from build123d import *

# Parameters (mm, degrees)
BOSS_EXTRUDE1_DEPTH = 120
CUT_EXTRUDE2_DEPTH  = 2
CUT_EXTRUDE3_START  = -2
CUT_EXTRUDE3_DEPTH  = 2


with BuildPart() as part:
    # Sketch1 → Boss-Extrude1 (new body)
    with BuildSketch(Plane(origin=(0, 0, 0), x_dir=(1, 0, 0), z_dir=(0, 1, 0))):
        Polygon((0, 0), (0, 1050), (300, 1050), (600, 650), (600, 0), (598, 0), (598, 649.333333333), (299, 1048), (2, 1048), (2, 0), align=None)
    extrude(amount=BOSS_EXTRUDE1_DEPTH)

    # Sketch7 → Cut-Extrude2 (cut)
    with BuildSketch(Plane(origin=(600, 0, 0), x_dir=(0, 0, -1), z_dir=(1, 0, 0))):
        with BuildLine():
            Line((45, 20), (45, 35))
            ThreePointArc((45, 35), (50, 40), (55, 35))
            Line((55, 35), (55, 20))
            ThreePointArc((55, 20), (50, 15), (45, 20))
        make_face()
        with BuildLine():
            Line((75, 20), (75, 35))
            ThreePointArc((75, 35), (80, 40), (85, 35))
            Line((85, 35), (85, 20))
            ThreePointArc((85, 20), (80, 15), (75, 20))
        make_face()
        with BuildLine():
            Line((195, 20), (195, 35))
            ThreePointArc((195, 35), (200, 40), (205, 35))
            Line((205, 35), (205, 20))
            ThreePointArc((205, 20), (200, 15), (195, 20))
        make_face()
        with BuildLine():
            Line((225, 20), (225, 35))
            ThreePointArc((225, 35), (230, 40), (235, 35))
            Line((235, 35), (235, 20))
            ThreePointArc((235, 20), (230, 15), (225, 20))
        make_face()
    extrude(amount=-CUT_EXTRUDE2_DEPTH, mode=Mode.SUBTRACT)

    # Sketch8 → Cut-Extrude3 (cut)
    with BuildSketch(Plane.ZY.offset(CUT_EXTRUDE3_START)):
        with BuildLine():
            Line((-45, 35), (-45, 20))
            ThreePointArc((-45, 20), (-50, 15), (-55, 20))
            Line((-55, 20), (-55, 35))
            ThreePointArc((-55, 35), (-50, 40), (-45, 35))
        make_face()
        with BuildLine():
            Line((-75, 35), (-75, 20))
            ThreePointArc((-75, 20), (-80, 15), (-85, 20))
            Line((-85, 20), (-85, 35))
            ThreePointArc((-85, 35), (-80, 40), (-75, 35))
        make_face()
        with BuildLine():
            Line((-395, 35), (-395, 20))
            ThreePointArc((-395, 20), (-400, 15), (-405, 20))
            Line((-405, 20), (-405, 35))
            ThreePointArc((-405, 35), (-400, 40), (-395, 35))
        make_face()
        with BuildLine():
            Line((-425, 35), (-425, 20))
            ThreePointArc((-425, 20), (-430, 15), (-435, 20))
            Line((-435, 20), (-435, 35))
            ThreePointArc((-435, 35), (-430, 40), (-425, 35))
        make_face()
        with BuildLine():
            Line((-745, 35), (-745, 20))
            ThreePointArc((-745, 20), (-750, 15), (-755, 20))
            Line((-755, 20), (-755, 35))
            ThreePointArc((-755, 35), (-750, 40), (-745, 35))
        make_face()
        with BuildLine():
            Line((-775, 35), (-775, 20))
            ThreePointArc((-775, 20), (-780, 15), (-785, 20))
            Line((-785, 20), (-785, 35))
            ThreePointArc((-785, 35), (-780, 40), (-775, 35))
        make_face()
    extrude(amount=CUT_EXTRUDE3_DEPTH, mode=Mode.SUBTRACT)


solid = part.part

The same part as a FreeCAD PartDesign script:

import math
import FreeCAD as App
import Part
import Sketcher
from FreeCAD import Vector

doc = App.newDocument("Part")
params = doc.addObject("Spreadsheet::Sheet", "Params")
for row, (alias, value) in enumerate([
    ("sketch1_width", "2 mm"),
    ("sketch1_width2", "297 mm"),
    ("sketch1_width3", "300 mm"),
    ("sketch1_height", "1050 mm"),
    ("sketch1_height2", "1048 mm"),
    ("pad1_length", "120 mm"),
    ("sketch2_radius", "5 mm"),
    ("sketch2_width", "15 mm"),
    ("pocket1_length", "2 mm"),
    ("sketch3_radius", "5 mm"),
    ("sketch3_width", "15 mm"),
    ("pocket2_length", "2 mm"),
], start=1):
    params.set(f"A{row}", alias)
    params.set(f"B{row}", "=" + value)
    params.setAlias(f"B{row}", alias)

body = doc.addObject("PartDesign::Body", "Body")

sketch1 = body.newObject("Sketcher::SketchObject", "Sketch")
sketch1.AttachmentSupport = (doc.getObject("XZ_Plane"), [""])
sketch1.MapMode = "FlatFace"
sketch1.addGeometry([
    Part.LineSegment(Vector(0, -1050, 0), Vector(0, 0, 0)),
    Part.LineSegment(Vector(0, 0, 0), Vector(2, 0, 0)),
    Part.LineSegment(Vector(2, 0, 0), Vector(2, -1048, 0)),
    Part.LineSegment(Vector(2, -1048, 0), Vector(299, -1048, 0)),
    Part.LineSegment(Vector(299, -1048, 0), Vector(598, -649.3, 0)),
    Part.LineSegment(Vector(598, -649.3, 0), Vector(598, 0, 0)),
    Part.LineSegment(Vector(598, 0, 0), Vector(600, 0, 0)),
    Part.LineSegment(Vector(600, 0, 0), Vector(600, -650, 0)),
    Part.LineSegment(Vector(600, -650, 0), Vector(300, -1050, 0)),
    Part.LineSegment(Vector(300, -1050, 0), Vector(0, -1050, 0)),
], False)
sketch1.addConstraint([
    Sketcher.Constraint("Coincident", 0, 2, 1, 1),
    Sketcher.Constraint("Coincident", 1, 2, 2, 1),
    Sketcher.Constraint("Coincident", 2, 2, 3, 1),
    Sketcher.Constraint("Coincident", 3, 2, 4, 1),
    Sketcher.Constraint("Coincident", 4, 2, 5, 1),
    Sketcher.Constraint("Coincident", 5, 2, 6, 1),
    Sketcher.Constraint("Coincident", 6, 2, 7, 1),
    Sketcher.Constraint("Coincident", 7, 2, 8, 1),
    Sketcher.Constraint("Coincident", 8, 2, 9, 1),
    Sketcher.Constraint("Coincident", 9, 2, 0, 1),
    Sketcher.Constraint("Vertical", 0),
    Sketcher.Constraint("Horizontal", 1),
    Sketcher.Constraint("Vertical", 2),
    Sketcher.Constraint("Horizontal", 3),
    Sketcher.Constraint("Vertical", 5),
    Sketcher.Constraint("Horizontal", 6),
    Sketcher.Constraint("Vertical", 7),
    Sketcher.Constraint("Horizontal", 9),
    Sketcher.Constraint("Coincident", 0, 2, -1, 1),
    Sketcher.Constraint("PointOnObject", 5, 2, -1),
    Sketcher.Constraint("Parallel", 4, 8),
    Sketcher.Constraint("Equal", 1, 6),
    Sketcher.Constraint("DistanceX", 1, 1, 1, 2, 2.0),
    Sketcher.Constraint("DistanceX", 3, 1, 3, 2, 297.0),
    Sketcher.Constraint("DistanceX", 9, 2, 9, 1, 300.0),
    Sketcher.Constraint("DistanceY", 0, 1, 0, 2, 1050.0),
    Sketcher.Constraint("DistanceY", 2, 2, 2, 1, 1048.0),
    Sketcher.Constraint("DistanceY", 7, 2, 7, 1, 650.0),
    Sketcher.Constraint("Distance", 8, 500.0),
])
sketch1.setExpression("Constraints[22]", "Params.sketch1_width")
sketch1.setExpression("Constraints[23]", "Params.sketch1_width2")
sketch1.setExpression("Constraints[24]", "Params.sketch1_width3")
sketch1.setExpression("Constraints[25]", "Params.sketch1_height")
sketch1.setExpression("Constraints[26]", "Params.sketch1_height2")
pad1 = body.newObject("PartDesign::Pad", "Pad")
pad1.Profile = sketch1
pad1.setExpression("Length", "Params.pad1_length")
pad1.Reversed = True

sketch2 = body.newObject("Sketcher::SketchObject", "Sketch001")
sketch2.AttachmentSupport = (doc.getObject("YZ_Plane"), [""])
sketch2.MapMode = "FlatFace"
sketch2.AttachmentOffset = App.Placement(Vector(0, 0, 600), App.Rotation())
sketch2.addGeometry([
    Part.LineSegment(Vector(35, -45, 0), Vector(20, -45, 0)),
    Part.ArcOfCircle(Part.Circle(Vector(20, -50, 0), Vector(0, 0, 1), 5), math.radians(90), math.radians(270)),
    Part.LineSegment(Vector(20, -55, 0), Vector(35, -55, 0)),
    Part.ArcOfCircle(Part.Circle(Vector(35, -50, 0), Vector(0, 0, 1), 5), math.radians(-90), math.radians(90)),
    Part.LineSegment(Vector(35, -75, 0), Vector(20, -75, 0)),
    Part.ArcOfCircle(Part.Circle(Vector(20, -80, 0), Vector(0, 0, 1), 5), math.radians(90), math.radians(270)),
    Part.LineSegment(Vector(20, -85, 0), Vector(35, -85, 0)),
    Part.ArcOfCircle(Part.Circle(Vector(35, -80, 0), Vector(0, 0, 1), 5), math.radians(-90), math.radians(90)),
    Part.LineSegment(Vector(35, -195, 0), Vector(20, -195, 0)),
    Part.ArcOfCircle(Part.Circle(Vector(20, -200, 0), Vector(0, 0, 1), 5), math.radians(90), math.radians(270)),
    Part.LineSegment(Vector(20, -205, 0), Vector(35, -205, 0)),
    Part.ArcOfCircle(Part.Circle(Vector(35, -200, 0), Vector(0, 0, 1), 5), math.radians(-90), math.radians(90)),
    Part.LineSegment(Vector(35, -225, 0), Vector(20, -225, 0)),
    Part.ArcOfCircle(Part.Circle(Vector(20, -230, 0), Vector(0, 0, 1), 5), math.radians(90), math.radians(270)),
    Part.LineSegment(Vector(20, -235, 0), Vector(35, -235, 0)),
    Part.ArcOfCircle(Part.Circle(Vector(35, -230, 0), Vector(0, 0, 1), 5), math.radians(-90), math.radians(90)),
], False)
sketch2.addConstraint([
    Sketcher.Constraint("Tangent", 0, 2, 1, 1),
    Sketcher.Constraint("Tangent", 1, 2, 2, 1),
    Sketcher.Constraint("Tangent", 2, 2, 3, 1),
    Sketcher.Constraint("Tangent", 3, 2, 0, 1),
    Sketcher.Constraint("Tangent", 4, 2, 5, 1),
    Sketcher.Constraint("Tangent", 5, 2, 6, 1),
    Sketcher.Constraint("Tangent", 6, 2, 7, 1),
    Sketcher.Constraint("Tangent", 7, 2, 4, 1),
    Sketcher.Constraint("Tangent", 8, 2, 9, 1),
    Sketcher.Constraint("Tangent", 9, 2, 10, 1),
    Sketcher.Constraint("Tangent", 10, 2, 11, 1),
    Sketcher.Constraint("Tangent", 11, 2, 8, 1),
    Sketcher.Constraint("Tangent", 12, 2, 13, 1),
    Sketcher.Constraint("Tangent", 13, 2, 14, 1),
    Sketcher.Constraint("Tangent", 14, 2, 15, 1),
    Sketcher.Constraint("Tangent", 15, 2, 12, 1),
    Sketcher.Constraint("Horizontal", 0),
    Sketcher.Constraint("Horizontal", 2),
    Sketcher.Constraint("Horizontal", 4),
    Sketcher.Constraint("Horizontal", 6),
    Sketcher.Constraint("Horizontal", 8),
    Sketcher.Constraint("Horizontal", 10),
    Sketcher.Constraint("Horizontal", 12),
    Sketcher.Constraint("Horizontal", 14),
    Sketcher.Constraint("Equal", 3, 5),
    Sketcher.Constraint("Equal", 7, 9),
    Sketcher.Constraint("Equal", 11, 13),
    Sketcher.Constraint("Vertical", 1, 3, 5, 3),
    Sketcher.Constraint("Vertical", 3, 3, 7, 3),
    Sketcher.Constraint("Vertical", 5, 3, 9, 3),
    Sketcher.Constraint("Vertical", 7, 3, 11, 3),
    Sketcher.Constraint("Vertical", 9, 3, 13, 3),
    Sketcher.Constraint("Vertical", 11, 3, 15, 3),
    Sketcher.Constraint("Radius", 1, 5.0),
    Sketcher.Constraint("DistanceX", 0, 2, 0, 1, 15.0),
    Sketcher.Constraint("DistanceX", -1, 1, 1, 3, 20.0),
    Sketcher.Constraint("DistanceY", 1, 3, -1, 1, 50.0),
    Sketcher.Constraint("DistanceY", 5, 3, -1, 1, 80.0),
    Sketcher.Constraint("DistanceY", 9, 3, -1, 1, 200.0),
    Sketcher.Constraint("DistanceY", 13, 3, -1, 1, 230.0),
])
sketch2.setExpression("Constraints[33]", "Params.sketch2_radius")
sketch2.setExpression("Constraints[34]", "Params.sketch2_width")
pocket1 = body.newObject("PartDesign::Pocket", "Pocket")
pocket1.Profile = sketch2
pocket1.setExpression("Length", "Params.pocket1_length")

sketch3 = body.newObject("Sketcher::SketchObject", "Sketch002")
sketch3.AttachmentSupport = (doc.getObject("YZ_Plane"), [""])
sketch3.MapMode = "FlatFace"
sketch3.AttachmentOffset = App.Placement(Vector(0, 0, 2), App.Rotation())
sketch3.addGeometry([
    Part.LineSegment(Vector(20, -45, 0), Vector(35, -45, 0)),
    Part.ArcOfCircle(Part.Circle(Vector(35, -50, 0), Vector(0, 0, 1), 5), math.radians(-90), math.radians(90)),
    Part.LineSegment(Vector(35, -55, 0), Vector(20, -55, 0)),
    Part.ArcOfCircle(Part.Circle(Vector(20, -50, 0), Vector(0, 0, 1), 5), math.radians(90), math.radians(270)),
    Part.LineSegment(Vector(20, -75, 0), Vector(35, -75, 0)),
    Part.ArcOfCircle(Part.Circle(Vector(35, -80, 0), Vector(0, 0, 1), 5), math.radians(-90), math.radians(90)),
    Part.LineSegment(Vector(35, -85, 0), Vector(20, -85, 0)),
    Part.ArcOfCircle(Part.Circle(Vector(20, -80, 0), Vector(0, 0, 1), 5), math.radians(90), math.radians(270)),
    Part.LineSegment(Vector(20, -395, 0), Vector(35, -395, 0)),
    Part.ArcOfCircle(Part.Circle(Vector(35, -400, 0), Vector(0, 0, 1), 5), math.radians(-90), math.radians(90)),
    Part.LineSegment(Vector(35, -405, 0), Vector(20, -405, 0)),
    Part.ArcOfCircle(Part.Circle(Vector(20, -400, 0), Vector(0, 0, 1), 5), math.radians(90), math.radians(270)),
    Part.LineSegment(Vector(20, -425, 0), Vector(35, -425, 0)),
    Part.ArcOfCircle(Part.Circle(Vector(35, -430, 0), Vector(0, 0, 1), 5), math.radians(-90), math.radians(90)),
    Part.LineSegment(Vector(35, -435, 0), Vector(20, -435, 0)),
    Part.ArcOfCircle(Part.Circle(Vector(20, -430, 0), Vector(0, 0, 1), 5), math.radians(90), math.radians(270)),
    Part.LineSegment(Vector(20, -745, 0), Vector(35, -745, 0)),
    Part.ArcOfCircle(Part.Circle(Vector(35, -750, 0), Vector(0, 0, 1), 5), math.radians(-90), math.radians(90)),
    Part.LineSegment(Vector(35, -755, 0), Vector(20, -755, 0)),
    Part.ArcOfCircle(Part.Circle(Vector(20, -750, 0), Vector(0, 0, 1), 5), math.radians(90), math.radians(270)),
    Part.LineSegment(Vector(20, -775, 0), Vector(35, -775, 0)),
    Part.ArcOfCircle(Part.Circle(Vector(35, -780, 0), Vector(0, 0, 1), 5), math.radians(-90), math.radians(90)),
    Part.LineSegment(Vector(35, -785, 0), Vector(20, -785, 0)),
    Part.ArcOfCircle(Part.Circle(Vector(20, -780, 0), Vector(0, 0, 1), 5), math.radians(90), math.radians(270)),
], False)
sketch3.addConstraint([
    Sketcher.Constraint("Tangent", 0, 2, 1, 2),
    Sketcher.Constraint("Tangent", 1, 1, 2, 1),
    Sketcher.Constraint("Tangent", 2, 2, 3, 2),
    Sketcher.Constraint("Tangent", 3, 1, 0, 1),
    Sketcher.Constraint("Tangent", 4, 2, 5, 2),
    Sketcher.Constraint("Tangent", 5, 1, 6, 1),
    Sketcher.Constraint("Tangent", 6, 2, 7, 2),
    Sketcher.Constraint("Tangent", 7, 1, 4, 1),
    Sketcher.Constraint("Tangent", 8, 2, 9, 2),
    Sketcher.Constraint("Tangent", 9, 1, 10, 1),
    Sketcher.Constraint("Tangent", 10, 2, 11, 2),
    Sketcher.Constraint("Tangent", 11, 1, 8, 1),
    Sketcher.Constraint("Tangent", 12, 2, 13, 2),
    Sketcher.Constraint("Tangent", 13, 1, 14, 1),
    Sketcher.Constraint("Tangent", 14, 2, 15, 2),
    Sketcher.Constraint("Tangent", 15, 1, 12, 1),
    Sketcher.Constraint("Tangent", 16, 2, 17, 2),
    Sketcher.Constraint("Tangent", 17, 1, 18, 1),
    Sketcher.Constraint("Tangent", 18, 2, 19, 2),
    Sketcher.Constraint("Tangent", 19, 1, 16, 1),
    Sketcher.Constraint("Tangent", 20, 2, 21, 2),
    Sketcher.Constraint("Tangent", 21, 1, 22, 1),
    Sketcher.Constraint("Tangent", 22, 2, 23, 2),
    Sketcher.Constraint("Tangent", 23, 1, 20, 1),
    Sketcher.Constraint("Horizontal", 0),
    Sketcher.Constraint("Horizontal", 2),
    Sketcher.Constraint("Horizontal", 4),
    Sketcher.Constraint("Horizontal", 6),
    Sketcher.Constraint("Horizontal", 8),
    Sketcher.Constraint("Horizontal", 10),
    Sketcher.Constraint("Horizontal", 12),
    Sketcher.Constraint("Horizontal", 14),
    Sketcher.Constraint("Horizontal", 16),
    Sketcher.Constraint("Horizontal", 18),
    Sketcher.Constraint("Horizontal", 20),
    Sketcher.Constraint("Horizontal", 22),
    Sketcher.Constraint("Equal", 3, 5),
    Sketcher.Constraint("Equal", 7, 9),
    Sketcher.Constraint("Equal", 11, 13),
    Sketcher.Constraint("Equal", 15, 17),
    Sketcher.Constraint("Equal", 19, 21),
    Sketcher.Constraint("Vertical", 1, 3, 5, 3),
    Sketcher.Constraint("Vertical", 3, 3, 7, 3),
    Sketcher.Constraint("Vertical", 5, 3, 9, 3),
    Sketcher.Constraint("Vertical", 7, 3, 11, 3),
    Sketcher.Constraint("Vertical", 9, 3, 13, 3),
    Sketcher.Constraint("Vertical", 11, 3, 15, 3),
    Sketcher.Constraint("Vertical", 13, 3, 17, 3),
    Sketcher.Constraint("Vertical", 15, 3, 19, 3),
    Sketcher.Constraint("Vertical", 17, 3, 21, 3),
    Sketcher.Constraint("Vertical", 19, 3, 23, 3),
    Sketcher.Constraint("Radius", 1, 5.0),
    Sketcher.Constraint("DistanceX", 0, 1, 0, 2, 15.0),
    Sketcher.Constraint("DistanceX", -1, 1, 1, 3, 35.0),
    Sketcher.Constraint("DistanceY", 1, 3, -1, 1, 50.0),
    Sketcher.Constraint("DistanceY", 5, 3, -1, 1, 80.0),
    Sketcher.Constraint("DistanceY", 9, 3, -1, 1, 400.0),
    Sketcher.Constraint("DistanceY", 13, 3, -1, 1, 430.0),
    Sketcher.Constraint("DistanceY", 17, 3, -1, 1, 750.0),
    Sketcher.Constraint("DistanceY", 21, 3, -1, 1, 780.0),
])
sketch3.setExpression("Constraints[51]", "Params.sketch3_radius")
sketch3.setExpression("Constraints[52]", "Params.sketch3_width")
pocket2 = body.newObject("PartDesign::Pocket", "Pocket001")
pocket2.Profile = sketch3
pocket2.setExpression("Length", "Params.pocket2_length")

doc.recompute()
